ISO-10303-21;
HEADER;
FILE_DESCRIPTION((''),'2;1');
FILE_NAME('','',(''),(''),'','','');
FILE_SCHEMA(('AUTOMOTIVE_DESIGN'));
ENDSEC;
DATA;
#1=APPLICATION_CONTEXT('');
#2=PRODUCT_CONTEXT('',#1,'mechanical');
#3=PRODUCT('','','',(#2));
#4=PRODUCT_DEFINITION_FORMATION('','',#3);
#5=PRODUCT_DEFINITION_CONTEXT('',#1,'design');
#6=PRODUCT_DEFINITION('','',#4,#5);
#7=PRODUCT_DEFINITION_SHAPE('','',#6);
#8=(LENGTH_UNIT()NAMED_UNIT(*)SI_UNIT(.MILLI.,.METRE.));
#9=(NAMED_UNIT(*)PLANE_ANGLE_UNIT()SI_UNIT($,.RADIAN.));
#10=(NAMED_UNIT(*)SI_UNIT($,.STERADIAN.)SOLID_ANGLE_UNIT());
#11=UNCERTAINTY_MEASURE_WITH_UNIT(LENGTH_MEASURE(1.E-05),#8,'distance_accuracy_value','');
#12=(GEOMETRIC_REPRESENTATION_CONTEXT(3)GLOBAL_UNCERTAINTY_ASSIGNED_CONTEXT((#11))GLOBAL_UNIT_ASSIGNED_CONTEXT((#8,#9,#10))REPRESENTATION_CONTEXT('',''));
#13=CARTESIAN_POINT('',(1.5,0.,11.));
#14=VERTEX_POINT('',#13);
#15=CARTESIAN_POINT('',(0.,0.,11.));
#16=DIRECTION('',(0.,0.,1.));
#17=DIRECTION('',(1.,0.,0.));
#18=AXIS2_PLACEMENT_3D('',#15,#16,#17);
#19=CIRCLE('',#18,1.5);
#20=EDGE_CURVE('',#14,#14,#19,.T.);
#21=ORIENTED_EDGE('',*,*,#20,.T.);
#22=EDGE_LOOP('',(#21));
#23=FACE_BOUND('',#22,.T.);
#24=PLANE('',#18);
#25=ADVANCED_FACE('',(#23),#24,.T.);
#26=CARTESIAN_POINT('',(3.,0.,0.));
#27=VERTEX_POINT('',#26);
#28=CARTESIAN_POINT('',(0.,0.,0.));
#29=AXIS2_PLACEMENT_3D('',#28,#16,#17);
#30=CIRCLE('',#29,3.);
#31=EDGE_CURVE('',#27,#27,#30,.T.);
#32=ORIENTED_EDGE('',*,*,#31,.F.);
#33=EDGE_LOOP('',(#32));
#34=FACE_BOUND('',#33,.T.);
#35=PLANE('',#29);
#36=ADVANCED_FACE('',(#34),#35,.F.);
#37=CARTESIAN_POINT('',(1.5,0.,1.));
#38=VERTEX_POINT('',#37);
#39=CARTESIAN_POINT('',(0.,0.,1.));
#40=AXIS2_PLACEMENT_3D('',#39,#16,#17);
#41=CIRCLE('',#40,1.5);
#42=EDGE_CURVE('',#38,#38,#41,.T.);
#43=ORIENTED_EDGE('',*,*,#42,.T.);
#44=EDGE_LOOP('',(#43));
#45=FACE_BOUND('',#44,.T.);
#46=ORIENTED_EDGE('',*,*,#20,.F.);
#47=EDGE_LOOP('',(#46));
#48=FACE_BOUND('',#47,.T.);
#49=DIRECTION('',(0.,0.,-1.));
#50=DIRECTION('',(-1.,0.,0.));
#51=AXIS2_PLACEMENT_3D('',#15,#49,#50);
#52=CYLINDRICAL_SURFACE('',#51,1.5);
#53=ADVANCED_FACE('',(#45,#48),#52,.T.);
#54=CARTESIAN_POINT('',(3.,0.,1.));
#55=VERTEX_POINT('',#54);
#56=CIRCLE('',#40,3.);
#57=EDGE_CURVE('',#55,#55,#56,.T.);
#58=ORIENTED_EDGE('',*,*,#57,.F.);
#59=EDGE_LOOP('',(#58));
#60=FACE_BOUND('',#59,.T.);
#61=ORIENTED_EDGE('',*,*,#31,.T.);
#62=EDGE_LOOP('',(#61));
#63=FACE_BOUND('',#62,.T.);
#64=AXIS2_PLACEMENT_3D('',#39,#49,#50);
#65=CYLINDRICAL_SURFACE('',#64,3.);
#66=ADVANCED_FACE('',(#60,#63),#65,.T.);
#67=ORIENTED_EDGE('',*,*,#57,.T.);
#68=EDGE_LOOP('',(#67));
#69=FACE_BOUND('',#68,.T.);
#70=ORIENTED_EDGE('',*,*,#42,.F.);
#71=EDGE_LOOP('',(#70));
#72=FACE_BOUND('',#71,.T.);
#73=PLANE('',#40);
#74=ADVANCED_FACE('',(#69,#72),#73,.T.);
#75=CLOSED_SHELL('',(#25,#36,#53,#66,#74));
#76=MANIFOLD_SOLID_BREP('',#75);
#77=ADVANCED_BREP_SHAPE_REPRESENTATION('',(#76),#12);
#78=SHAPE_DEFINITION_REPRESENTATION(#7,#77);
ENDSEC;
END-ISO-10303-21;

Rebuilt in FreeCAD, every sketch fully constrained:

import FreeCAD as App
import Part
import Sketcher
Q = App.Units.Quantity

doc = App.newDocument("Part")
params = doc.addObject("Spreadsheet::Sheet", "Params")
for row, (alias, value) in enumerate([
    ("sketch1_diameter", "6 mm"),
    ("pad1_length", "1 mm"),
    ("sketch2_diameter", "3 mm"),
    ("pad2_length", "10 mm"),
], start=1):
    params.set(f"A{row}", alias)
    params.set(f"B{row}", "=" + value)
    params.setAlias(f"B{row}", alias)

body = doc.addObject("PartDesign::Body", "Body")

# Sketch on XY plane
sketch1 = body.newObject("Sketcher::SketchObject", "Sketch")
sketch1.AttachmentSupport = (doc.getObject("XY_Plane"), [""])
sketch1.MapMode = "FlatFace"
sketch1.addGeometry(Part.Circle(App.Vector(0, 0, 0), App.Vector(0, 0, 1), 3), False)
sketch1.addConstraint(Sketcher.Constraint("Coincident", 0, 3, -1, 1))
sketch1.addConstraint(Sketcher.Constraint("Diameter", 0, Q("6 mm")))
sketch1.setExpression("Constraints[1]", "Params.sketch1_diameter")
pad1 = body.newObject("PartDesign::Pad", "Pad")
pad1.Profile = sketch1
pad1.setExpression("Length", "Params.pad1_length")

# Sketch on XY plane
sketch2 = body.newObject("Sketcher::SketchObject", "Sketch001")
sketch2.AttachmentSupport = (doc.getObject("XY_Plane"), [""])
sketch2.MapMode = "FlatFace"
sketch2.AttachmentOffset = App.Placement(App.Vector(0, 0, 1), App.Rotation())
sketch2.addGeometry(Part.Circle(App.Vector(0, 0, 0), App.Vector(0, 0, 1), 1.5), False)
sketch2.addConstraint(Sketcher.Constraint("Coincident", 0, 3, -1, 1))
sketch2.addConstraint(Sketcher.Constraint("Diameter", 0, Q("3 mm")))
sketch2.setExpression("Constraints[1]", "Params.sketch2_diameter")
pad2 = body.newObject("PartDesign::Pad", "Pad001")
pad2.Profile = sketch2
pad2.setExpression("Length", "Params.pad2_length")

doc.recompute()
